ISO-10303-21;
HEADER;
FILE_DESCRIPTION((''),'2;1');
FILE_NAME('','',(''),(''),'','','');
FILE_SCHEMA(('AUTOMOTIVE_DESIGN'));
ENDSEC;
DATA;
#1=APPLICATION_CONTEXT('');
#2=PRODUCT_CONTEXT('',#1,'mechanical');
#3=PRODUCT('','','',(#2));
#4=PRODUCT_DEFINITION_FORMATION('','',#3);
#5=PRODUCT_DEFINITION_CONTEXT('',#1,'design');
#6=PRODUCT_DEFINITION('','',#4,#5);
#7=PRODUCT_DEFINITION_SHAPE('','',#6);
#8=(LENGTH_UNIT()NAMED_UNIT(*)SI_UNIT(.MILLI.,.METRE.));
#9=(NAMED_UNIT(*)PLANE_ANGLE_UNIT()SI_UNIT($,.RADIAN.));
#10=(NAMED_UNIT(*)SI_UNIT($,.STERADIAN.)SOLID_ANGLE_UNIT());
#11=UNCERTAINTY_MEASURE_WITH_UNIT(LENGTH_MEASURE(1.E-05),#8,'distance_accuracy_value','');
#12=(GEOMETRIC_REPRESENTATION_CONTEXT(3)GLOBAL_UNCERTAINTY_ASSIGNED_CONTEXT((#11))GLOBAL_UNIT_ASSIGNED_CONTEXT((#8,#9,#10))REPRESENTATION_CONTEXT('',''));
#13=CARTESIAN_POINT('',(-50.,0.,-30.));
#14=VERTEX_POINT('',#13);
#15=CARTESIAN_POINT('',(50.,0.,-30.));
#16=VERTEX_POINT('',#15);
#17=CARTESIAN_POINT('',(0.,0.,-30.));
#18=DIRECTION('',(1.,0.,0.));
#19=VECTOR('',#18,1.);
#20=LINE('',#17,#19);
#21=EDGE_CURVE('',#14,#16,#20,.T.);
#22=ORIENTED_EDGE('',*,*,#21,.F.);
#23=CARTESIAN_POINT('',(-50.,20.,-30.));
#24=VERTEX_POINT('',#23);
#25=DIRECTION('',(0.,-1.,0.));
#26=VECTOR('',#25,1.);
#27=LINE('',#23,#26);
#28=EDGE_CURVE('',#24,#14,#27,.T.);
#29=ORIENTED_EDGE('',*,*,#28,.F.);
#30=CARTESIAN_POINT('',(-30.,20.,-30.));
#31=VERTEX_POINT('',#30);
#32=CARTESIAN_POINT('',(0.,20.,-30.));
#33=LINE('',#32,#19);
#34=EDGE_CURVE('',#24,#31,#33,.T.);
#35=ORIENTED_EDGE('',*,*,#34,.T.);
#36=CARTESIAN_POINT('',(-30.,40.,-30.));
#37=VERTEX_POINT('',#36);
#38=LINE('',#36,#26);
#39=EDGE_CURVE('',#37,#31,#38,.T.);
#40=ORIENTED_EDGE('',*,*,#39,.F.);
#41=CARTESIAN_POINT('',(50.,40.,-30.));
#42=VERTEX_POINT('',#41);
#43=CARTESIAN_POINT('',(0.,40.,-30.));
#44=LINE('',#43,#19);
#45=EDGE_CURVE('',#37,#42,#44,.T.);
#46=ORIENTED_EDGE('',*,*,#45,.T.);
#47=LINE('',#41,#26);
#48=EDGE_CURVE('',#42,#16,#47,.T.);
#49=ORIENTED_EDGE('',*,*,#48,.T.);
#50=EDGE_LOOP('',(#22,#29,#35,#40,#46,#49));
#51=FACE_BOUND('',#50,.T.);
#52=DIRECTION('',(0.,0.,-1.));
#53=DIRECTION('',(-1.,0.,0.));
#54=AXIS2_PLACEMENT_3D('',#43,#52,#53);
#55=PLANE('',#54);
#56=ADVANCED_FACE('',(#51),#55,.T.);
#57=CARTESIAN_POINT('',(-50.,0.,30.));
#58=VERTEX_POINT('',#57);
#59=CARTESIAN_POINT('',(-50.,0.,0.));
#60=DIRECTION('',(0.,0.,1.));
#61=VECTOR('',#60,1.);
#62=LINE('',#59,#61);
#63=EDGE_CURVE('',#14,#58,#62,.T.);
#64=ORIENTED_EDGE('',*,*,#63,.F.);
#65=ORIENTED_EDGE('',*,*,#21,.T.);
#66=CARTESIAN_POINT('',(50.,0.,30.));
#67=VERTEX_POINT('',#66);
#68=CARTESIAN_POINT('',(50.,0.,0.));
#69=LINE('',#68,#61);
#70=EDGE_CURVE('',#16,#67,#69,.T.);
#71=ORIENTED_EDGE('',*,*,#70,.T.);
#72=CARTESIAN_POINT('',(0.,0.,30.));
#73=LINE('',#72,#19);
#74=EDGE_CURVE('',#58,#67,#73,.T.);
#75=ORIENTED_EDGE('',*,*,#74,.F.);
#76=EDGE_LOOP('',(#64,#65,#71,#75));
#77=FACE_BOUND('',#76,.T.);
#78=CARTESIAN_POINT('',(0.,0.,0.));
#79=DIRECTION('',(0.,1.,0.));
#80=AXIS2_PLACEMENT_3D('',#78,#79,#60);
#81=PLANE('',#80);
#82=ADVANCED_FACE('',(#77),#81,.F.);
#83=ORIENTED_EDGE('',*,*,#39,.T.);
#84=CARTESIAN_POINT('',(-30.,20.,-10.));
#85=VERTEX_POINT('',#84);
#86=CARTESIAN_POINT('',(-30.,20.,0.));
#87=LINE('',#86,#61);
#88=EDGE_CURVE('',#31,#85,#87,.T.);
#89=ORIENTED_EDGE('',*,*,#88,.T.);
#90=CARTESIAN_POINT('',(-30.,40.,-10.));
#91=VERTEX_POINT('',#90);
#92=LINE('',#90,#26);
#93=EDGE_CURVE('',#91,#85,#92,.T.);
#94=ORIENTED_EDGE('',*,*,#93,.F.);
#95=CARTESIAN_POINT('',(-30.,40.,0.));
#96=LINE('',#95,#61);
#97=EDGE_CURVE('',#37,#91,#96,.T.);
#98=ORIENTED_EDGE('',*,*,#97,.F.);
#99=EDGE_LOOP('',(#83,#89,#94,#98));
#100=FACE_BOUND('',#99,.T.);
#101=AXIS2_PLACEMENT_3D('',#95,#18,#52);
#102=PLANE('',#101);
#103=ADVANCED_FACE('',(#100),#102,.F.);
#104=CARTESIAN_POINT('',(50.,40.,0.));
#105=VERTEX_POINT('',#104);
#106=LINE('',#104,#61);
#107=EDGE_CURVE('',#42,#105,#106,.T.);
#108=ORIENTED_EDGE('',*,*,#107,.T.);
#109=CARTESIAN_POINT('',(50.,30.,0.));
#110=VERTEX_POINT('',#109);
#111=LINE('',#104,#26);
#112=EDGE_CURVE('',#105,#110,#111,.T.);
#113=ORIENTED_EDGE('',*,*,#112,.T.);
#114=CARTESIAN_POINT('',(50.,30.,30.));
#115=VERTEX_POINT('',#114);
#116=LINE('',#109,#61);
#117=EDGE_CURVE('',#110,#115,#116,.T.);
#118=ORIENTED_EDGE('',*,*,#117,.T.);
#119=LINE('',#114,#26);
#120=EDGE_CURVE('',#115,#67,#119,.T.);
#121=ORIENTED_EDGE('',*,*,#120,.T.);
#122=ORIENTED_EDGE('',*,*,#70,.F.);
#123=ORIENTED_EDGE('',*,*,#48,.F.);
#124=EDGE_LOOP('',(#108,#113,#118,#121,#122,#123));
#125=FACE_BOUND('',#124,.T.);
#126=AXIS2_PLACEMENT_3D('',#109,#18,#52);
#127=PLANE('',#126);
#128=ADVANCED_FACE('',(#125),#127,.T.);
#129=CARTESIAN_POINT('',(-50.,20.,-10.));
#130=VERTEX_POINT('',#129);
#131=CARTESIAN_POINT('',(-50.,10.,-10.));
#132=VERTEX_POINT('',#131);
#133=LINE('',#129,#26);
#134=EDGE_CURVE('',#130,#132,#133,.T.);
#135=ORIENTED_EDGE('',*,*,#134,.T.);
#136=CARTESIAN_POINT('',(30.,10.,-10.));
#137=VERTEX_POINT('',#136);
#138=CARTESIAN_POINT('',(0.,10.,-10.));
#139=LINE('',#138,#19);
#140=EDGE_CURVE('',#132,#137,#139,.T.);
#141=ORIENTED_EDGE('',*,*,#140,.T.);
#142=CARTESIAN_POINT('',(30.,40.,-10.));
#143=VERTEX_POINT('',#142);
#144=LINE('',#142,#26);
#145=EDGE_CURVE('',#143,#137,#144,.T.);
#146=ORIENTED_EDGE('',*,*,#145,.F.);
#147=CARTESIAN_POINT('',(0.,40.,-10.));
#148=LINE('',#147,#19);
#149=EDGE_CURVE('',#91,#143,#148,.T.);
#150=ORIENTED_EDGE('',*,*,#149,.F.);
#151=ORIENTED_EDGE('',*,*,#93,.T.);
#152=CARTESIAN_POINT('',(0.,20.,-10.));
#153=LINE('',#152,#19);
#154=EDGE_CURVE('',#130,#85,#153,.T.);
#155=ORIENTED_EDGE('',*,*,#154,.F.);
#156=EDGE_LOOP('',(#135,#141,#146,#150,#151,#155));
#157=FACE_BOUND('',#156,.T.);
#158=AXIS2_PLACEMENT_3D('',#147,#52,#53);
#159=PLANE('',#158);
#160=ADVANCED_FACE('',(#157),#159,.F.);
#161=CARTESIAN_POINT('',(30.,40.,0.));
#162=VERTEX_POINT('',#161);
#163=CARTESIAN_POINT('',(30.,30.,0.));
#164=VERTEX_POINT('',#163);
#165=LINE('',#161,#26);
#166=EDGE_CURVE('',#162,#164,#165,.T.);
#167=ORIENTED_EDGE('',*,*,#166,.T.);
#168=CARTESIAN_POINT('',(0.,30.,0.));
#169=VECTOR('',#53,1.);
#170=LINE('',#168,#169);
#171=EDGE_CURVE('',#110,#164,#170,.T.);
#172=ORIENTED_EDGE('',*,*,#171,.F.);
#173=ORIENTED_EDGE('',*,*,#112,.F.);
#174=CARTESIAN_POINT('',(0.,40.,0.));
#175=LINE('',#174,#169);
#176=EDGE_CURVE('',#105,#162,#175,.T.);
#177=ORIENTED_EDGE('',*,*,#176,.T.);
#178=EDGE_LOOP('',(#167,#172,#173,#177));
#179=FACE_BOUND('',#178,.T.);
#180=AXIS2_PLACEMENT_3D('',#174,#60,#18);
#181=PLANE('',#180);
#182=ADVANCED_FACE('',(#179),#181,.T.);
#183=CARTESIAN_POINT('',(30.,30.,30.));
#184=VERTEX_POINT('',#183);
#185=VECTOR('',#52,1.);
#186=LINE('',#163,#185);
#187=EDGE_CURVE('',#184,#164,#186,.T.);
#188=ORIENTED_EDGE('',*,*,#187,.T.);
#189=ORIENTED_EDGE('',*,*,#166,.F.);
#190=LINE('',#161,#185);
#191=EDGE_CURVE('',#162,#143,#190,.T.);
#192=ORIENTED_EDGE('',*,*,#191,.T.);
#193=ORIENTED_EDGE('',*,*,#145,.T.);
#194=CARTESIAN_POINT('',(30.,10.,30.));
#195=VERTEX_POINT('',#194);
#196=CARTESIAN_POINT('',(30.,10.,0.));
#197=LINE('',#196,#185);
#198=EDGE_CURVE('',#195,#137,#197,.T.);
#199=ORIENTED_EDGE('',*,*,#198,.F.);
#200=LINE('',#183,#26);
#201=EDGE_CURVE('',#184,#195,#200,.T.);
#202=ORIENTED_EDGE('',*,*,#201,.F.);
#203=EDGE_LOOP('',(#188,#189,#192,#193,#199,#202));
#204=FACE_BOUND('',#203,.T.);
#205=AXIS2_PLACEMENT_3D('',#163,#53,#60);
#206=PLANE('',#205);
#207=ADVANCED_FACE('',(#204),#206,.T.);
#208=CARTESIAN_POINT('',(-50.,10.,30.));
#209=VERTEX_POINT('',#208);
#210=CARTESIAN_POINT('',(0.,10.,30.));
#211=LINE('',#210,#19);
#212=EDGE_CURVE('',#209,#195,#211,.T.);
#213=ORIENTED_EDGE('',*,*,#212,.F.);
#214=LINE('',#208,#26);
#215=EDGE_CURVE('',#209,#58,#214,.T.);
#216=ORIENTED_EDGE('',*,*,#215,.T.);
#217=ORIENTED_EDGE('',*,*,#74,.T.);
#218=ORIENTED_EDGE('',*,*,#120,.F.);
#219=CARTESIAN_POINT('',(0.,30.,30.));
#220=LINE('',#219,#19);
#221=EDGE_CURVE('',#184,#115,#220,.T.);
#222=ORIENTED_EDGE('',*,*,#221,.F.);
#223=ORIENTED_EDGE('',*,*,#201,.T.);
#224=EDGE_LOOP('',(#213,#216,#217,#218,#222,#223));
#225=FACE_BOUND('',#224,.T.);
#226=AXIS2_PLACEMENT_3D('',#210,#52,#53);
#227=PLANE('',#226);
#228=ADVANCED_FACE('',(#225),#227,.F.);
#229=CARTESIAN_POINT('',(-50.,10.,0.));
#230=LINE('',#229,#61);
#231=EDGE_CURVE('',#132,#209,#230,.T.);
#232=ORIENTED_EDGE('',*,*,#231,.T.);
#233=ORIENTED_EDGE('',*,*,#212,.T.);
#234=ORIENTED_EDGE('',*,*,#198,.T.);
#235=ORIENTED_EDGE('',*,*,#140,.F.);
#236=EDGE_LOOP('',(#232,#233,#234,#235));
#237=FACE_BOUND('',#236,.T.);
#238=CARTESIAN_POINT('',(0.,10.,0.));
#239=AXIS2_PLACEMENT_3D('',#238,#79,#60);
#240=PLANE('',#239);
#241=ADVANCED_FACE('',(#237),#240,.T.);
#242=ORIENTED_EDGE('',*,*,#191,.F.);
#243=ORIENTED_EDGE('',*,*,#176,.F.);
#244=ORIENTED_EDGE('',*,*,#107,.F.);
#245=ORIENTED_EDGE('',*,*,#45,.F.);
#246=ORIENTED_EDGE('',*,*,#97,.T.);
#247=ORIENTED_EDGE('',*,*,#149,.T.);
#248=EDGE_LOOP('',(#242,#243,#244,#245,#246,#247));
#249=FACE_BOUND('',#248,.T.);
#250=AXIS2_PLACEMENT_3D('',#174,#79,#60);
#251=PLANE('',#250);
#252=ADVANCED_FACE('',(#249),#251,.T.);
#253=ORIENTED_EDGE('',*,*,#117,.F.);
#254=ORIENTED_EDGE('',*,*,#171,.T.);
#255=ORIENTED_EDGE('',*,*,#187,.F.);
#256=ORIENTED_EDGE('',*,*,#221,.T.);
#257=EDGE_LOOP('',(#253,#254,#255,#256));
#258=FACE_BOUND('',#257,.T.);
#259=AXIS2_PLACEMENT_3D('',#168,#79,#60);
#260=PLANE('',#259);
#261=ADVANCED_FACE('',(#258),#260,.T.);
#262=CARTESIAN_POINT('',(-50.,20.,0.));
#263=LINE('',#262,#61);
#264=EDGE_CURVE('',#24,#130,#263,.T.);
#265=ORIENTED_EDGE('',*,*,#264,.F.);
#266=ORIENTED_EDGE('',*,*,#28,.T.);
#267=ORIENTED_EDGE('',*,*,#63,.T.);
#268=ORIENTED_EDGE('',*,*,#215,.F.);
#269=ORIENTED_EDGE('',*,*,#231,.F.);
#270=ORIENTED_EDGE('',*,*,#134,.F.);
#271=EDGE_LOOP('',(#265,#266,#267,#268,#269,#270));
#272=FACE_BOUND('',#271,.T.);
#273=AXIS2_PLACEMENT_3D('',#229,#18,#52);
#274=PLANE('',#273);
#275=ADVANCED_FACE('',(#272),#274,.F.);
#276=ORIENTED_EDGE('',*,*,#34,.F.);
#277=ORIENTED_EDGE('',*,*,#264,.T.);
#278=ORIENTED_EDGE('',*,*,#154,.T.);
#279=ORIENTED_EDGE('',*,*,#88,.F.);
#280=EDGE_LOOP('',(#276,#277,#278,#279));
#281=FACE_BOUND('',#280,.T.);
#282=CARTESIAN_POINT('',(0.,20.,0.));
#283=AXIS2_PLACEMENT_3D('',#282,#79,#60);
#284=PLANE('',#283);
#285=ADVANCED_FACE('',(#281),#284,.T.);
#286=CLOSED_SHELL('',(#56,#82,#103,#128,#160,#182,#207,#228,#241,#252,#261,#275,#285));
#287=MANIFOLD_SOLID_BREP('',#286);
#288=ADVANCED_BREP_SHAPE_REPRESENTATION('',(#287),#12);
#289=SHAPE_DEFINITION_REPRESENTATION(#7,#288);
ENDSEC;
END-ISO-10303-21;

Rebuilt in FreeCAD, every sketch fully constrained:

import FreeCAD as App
import Part
import Sketcher
from FreeCAD import Vector


def add_polygon(sketch, points):
    """Adds a closed chain of lines whose ends are joined by coincident constraints."""
    first, n = sketch.GeometryCount, len(points)
    for a, b in zip(points, points[1:] + points[:1]):
        sketch.addGeometry(Part.LineSegment(App.Vector(*a, 0), App.Vector(*b, 0)), False)
    for i in range(n):
        sketch.addConstraint(Sketcher.Constraint("Coincident", first + i, 2, first + (i + 1) % n, 1))

doc = App.newDocument("Part")
body = doc.addObject("PartDesign::Body", "Body")

# Sketch on XZ plane
sketch1 = doc.addObject("Sketcher::SketchObject", "Sketch")
body.addObject(sketch1)
sketch1.AttachmentSupport = (doc.XZ_Plane, [""])
sketch1.MapMode = "FlatFace"
add_polygon(sketch1, [(-50, -10), (-50, 30), (30, 30), (30, -10)])  # lines 0-3
sketch1.addConstraint([
    Sketcher.Constraint("Vertical", 0),
    Sketcher.Constraint("Horizontal", 1),
    Sketcher.Constraint("Vertical", 2),
    Sketcher.Constraint("Horizontal", 3),
    Sketcher.Constraint("DistanceX", 1, 1, 1, 2, 80.0),
    Sketcher.Constraint("DistanceY", 0, 1, 0, 2, 40.0),
    Sketcher.Constraint("DistanceX", 0, 2, -1, 1, 50.0),
    Sketcher.Constraint("DistanceY", -1, 1, 0, 2, 30.0),
])
pad1 = doc.addObject("PartDesign::Pad", "Pad")
body.addObject(pad1)
pad1.Profile = sketch1
pad1.Length = 10
pad1.Reversed = True

# Sketch on XZ plane
sketch2 = doc.addObject("Sketcher::SketchObject", "Sketch001")
body.addObject(sketch2)
sketch2.AttachmentSupport = (doc.XZ_Plane, [""])
sketch2.MapMode = "FlatFace"
add_polygon(sketch2, [(30, 0), (30, 30), (50, 30), (50, 0)])  # lines 0-3
sketch2.addConstraint([
    Sketcher.Constraint("Vertical", 0),
    Sketcher.Constraint("Horizontal", 1),
    Sketcher.Constraint("Vertical", 2),
    Sketcher.Constraint("Horizontal", 3),
    Sketcher.Constraint("PointOnObject", 2, 2, -1),
    Sketcher.Constraint("DistanceX", 1, 1, 1, 2, 20.0),
    Sketcher.Constraint("DistanceY", 0, 1, 0, 2, 30.0),
    Sketcher.Constraint("DistanceX", -1, 1, 0, 2, 30.0),
])
pad2 = doc.addObject("PartDesign::Pad", "Pad001")
body.addObject(pad2)
pad2.Profile = sketch2
pad2.Length = 30
pad2.Reversed = True

# Sketch on XZ plane
sketch3 = doc.addObject("Sketcher::SketchObject", "Sketch002")
body.addObject(sketch3)
sketch3.AttachmentSupport = (doc.XZ_Plane, [""])
sketch3.MapMode = "FlatFace"
add_polygon(sketch3, [(-30, -30), (-30, -10), (30, -10), (30, 0), (50, 0), (50, -30)])  # lines 0-5
sketch3.addConstraint([
    Sketcher.Constraint("Vertical", 0),
    Sketcher.Constraint("Horizontal", 1),
    Sketcher.Constraint("Vertical", 2),
    Sketcher.Constraint("Horizontal", 3),
    Sketcher.Constraint("Vertical", 4),
    Sketcher.Constraint("Horizontal", 5),
    Sketcher.Constraint("PointOnObject", 2, 2, -1),
    Sketcher.Constraint("Equal", 3, 0),
    Sketcher.Constraint("DistanceX", 1, 1, 1, 2, 60.0),
    Sketcher.Constraint("DistanceX", 3, 1, 3, 2, 20.0),
    Sketcher.Constraint("DistanceY", 2, 1, 2, 2, 10.0),
    Sketcher.Constraint("DistanceX", 0, 2, -1, 1, 30.0),
])
pad3 = doc.addObject("PartDesign::Pad", "Pad002")
body.addObject(pad3)
pad3.Profile = sketch3
pad3.Length = 40
pad3.Reversed = True

# Sketch on XZ plane
sketch4 = doc.addObject("Sketcher::SketchObject", "Sketch003")
body.addObject(sketch4)
sketch4.AttachmentSupport = (doc.XZ_Plane, [""])
sketch4.MapMode = "FlatFace"
add_polygon(sketch4, [(-50, -30), (-50, -10), (-30, -10), (-30, -30)])  # lines 0-3
sketch4.addConstraint([
    Sketcher.Constraint("Vertical", 0),
    Sketcher.Constraint("Horizontal", 1),
    Sketcher.Constraint("Vertical", 2),
    Sketcher.Constraint("Horizontal", 3),
    Sketcher.Constraint("Equal", 3, 0),
    Sketcher.Constraint("DistanceX", 1, 1, 1, 2, 20.0),
    Sketcher.Constraint("DistanceX", 0, 2, -1, 1, 50.0),
    Sketcher.Constraint("DistanceY", 0, 2, -1, 1, 10.0),
])
pad4 = doc.addObject("PartDesign::Pad", "Pad003")
body.addObject(pad4)
pad4.Profile = sketch4
pad4.Length = 20
pad4.Reversed = True

doc.recompute()
